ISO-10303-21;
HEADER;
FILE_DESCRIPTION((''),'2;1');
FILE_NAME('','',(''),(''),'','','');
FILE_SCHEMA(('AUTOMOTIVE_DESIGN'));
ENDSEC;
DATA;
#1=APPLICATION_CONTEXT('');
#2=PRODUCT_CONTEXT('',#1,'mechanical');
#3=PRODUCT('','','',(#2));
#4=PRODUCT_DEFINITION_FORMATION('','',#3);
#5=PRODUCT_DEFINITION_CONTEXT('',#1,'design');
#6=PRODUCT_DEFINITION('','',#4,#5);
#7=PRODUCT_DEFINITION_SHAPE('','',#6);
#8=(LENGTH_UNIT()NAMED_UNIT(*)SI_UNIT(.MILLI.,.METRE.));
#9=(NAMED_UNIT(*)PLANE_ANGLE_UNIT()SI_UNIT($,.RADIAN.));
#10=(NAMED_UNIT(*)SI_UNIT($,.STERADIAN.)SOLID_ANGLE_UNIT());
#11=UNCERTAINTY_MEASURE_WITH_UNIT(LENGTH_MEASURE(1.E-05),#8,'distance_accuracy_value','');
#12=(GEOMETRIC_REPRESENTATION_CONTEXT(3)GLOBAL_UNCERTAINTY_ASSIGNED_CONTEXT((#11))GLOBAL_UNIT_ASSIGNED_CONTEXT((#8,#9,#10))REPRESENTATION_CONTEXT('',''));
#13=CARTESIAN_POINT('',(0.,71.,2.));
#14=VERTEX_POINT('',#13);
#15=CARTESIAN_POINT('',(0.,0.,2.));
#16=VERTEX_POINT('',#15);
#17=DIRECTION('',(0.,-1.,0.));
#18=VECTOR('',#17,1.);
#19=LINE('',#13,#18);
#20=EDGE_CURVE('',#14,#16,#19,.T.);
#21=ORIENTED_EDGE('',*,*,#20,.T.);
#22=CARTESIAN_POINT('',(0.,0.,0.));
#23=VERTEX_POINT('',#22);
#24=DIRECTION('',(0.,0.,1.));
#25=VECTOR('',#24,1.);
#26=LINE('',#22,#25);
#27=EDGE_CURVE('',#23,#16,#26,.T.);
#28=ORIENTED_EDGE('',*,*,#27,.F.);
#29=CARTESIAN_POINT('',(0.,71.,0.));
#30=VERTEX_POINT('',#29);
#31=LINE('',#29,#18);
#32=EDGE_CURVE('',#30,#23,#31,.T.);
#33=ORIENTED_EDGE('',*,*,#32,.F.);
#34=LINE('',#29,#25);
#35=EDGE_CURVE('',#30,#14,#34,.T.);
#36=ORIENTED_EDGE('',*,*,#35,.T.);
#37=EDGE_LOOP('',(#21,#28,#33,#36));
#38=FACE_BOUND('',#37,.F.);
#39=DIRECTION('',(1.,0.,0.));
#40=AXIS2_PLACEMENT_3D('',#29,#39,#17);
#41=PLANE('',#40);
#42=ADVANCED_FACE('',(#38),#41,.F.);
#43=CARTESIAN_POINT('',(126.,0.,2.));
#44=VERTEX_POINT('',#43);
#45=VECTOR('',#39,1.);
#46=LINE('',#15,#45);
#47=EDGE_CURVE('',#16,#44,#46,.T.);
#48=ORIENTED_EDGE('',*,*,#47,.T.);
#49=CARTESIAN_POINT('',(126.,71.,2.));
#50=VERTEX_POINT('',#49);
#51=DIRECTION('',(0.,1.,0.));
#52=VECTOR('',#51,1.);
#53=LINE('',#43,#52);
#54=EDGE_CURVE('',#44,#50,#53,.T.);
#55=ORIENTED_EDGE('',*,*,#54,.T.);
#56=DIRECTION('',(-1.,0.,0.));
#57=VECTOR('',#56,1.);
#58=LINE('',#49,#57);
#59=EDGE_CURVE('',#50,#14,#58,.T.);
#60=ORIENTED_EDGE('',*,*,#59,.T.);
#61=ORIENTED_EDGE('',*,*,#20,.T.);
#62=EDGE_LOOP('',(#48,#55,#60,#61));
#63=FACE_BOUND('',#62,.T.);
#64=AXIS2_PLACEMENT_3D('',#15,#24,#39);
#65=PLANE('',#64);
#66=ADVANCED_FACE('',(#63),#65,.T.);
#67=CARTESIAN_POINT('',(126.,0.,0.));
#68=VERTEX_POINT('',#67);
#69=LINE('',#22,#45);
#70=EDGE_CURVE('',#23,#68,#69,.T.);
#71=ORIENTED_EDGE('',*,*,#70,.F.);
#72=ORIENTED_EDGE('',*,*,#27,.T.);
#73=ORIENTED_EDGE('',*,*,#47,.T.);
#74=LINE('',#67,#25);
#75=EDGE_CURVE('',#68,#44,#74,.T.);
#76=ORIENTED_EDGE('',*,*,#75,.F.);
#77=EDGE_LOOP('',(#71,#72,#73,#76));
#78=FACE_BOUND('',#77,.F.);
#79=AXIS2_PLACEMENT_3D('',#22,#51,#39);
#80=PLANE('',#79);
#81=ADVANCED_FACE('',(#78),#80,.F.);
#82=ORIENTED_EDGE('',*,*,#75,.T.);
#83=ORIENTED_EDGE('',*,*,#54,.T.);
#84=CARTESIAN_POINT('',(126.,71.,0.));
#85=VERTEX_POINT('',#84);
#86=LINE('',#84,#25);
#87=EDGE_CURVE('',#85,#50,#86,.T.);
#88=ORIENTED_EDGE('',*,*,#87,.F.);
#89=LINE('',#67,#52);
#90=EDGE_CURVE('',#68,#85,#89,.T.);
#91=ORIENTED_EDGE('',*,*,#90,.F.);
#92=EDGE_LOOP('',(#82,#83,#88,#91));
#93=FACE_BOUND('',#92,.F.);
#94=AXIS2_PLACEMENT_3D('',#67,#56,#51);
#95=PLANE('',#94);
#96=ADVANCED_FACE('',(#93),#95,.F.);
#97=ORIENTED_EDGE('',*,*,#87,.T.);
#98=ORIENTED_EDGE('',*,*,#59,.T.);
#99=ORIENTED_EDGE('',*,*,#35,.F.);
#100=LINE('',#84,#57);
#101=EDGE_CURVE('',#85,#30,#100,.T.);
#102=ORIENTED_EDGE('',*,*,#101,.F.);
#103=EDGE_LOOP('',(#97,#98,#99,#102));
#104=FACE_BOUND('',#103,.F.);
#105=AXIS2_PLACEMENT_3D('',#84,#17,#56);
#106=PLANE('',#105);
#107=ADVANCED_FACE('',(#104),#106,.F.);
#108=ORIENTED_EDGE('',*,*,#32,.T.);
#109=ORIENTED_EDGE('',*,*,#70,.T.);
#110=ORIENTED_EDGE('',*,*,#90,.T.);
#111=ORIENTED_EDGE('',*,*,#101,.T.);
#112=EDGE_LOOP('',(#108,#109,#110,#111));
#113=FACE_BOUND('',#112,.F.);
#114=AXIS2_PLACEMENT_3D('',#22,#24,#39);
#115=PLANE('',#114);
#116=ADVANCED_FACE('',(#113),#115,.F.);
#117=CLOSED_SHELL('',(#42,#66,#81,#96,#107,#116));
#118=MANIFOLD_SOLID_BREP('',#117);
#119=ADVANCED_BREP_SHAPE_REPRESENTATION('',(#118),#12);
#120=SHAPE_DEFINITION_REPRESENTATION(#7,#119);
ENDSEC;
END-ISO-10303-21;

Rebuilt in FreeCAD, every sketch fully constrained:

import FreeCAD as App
import Part
import Sketcher
from FreeCAD import Vector


def add_polygon(sketch, points):
    """Adds a closed chain of lines whose ends are joined by coincident constraints."""
    first, n = sketch.GeometryCount, len(points)
    for a, b in zip(points, points[1:] + points[:1]):
        sketch.addGeometry(Part.LineSegment(App.Vector(*a, 0), App.Vector(*b, 0)), False)
    for i in range(n):
        sketch.addConstraint(Sketcher.Constraint("Coincident", first + i, 2, first + (i + 1) % n, 1))

doc = App.newDocument("Part")
params = doc.addObject("Spreadsheet::Sheet", "Params")
for row, (alias, value) in enumerate([
    ("sketch1_width", "126 mm"),
    ("sketch1_height", "71 mm"),
    ("pad1_length", "2 mm"),
], start=1):
    params.set(f"A{row}", alias)
    params.set(f"B{row}", "=" + value)
    params.setAlias(f"B{row}", alias)

body = doc.addObject("PartDesign::Body", "Body")

# Sketch on XY plane
sketch1 = doc.addObject("Sketcher::SketchObject", "Sketch")
body.addObject(sketch1)
sketch1.AttachmentSupport = (doc.XY_Plane, [""])
sketch1.MapMode = "FlatFace"
add_polygon(sketch1, [(0, 71), (0, 0), (126, 0), (126, 71)])  # lines 0-3
sketch1.addConstraint(Sketcher.Constraint("Vertical", 0))
sketch1.addConstraint(Sketcher.Constraint("Horizontal", 1))
sketch1.addConstraint(Sketcher.Constraint("Vertical", 2))
sketch1.addConstraint(Sketcher.Constraint("Horizontal", 3))
sketch1.addConstraint(Sketcher.Constraint("Coincident", 0, 2, -1, 1))
sketch1.addConstraint(Sketcher.Constraint("DistanceX", 1, 1, 1, 2, 126.0))
sketch1.addConstraint(Sketcher.Constraint("DistanceY", 0, 2, 0, 1, 71.0))
sketch1.setExpression("Constraints[9]", "Params.sketch1_width")
sketch1.setExpression("Constraints[10]", "Params.sketch1_height")
pad1 = doc.addObject("PartDesign::Pad", "Pad")
body.addObject(pad1)
pad1.Profile = sketch1
pad1.setExpression("Length", "Params.pad1_length")

doc.recompute()
